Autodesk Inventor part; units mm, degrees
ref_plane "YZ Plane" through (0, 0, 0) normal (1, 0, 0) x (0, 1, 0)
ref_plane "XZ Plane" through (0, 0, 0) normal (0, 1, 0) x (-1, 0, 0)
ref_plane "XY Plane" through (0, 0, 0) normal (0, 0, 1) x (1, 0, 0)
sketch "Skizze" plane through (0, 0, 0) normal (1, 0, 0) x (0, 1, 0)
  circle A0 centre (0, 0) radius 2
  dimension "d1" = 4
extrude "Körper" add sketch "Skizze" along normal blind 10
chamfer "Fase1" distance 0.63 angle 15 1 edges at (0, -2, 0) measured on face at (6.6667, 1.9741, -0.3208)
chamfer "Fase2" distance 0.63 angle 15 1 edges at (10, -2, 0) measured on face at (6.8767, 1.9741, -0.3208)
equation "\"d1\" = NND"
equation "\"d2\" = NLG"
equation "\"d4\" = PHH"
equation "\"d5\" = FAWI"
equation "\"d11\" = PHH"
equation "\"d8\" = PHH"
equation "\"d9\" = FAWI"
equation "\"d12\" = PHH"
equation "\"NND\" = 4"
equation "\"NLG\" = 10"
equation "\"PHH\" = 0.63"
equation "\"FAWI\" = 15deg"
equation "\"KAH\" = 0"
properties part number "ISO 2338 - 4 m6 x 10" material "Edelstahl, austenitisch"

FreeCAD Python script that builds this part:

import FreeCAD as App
import Part
import Sketcher


def edges_at(feature, points):
    """Names of the edges that pass closest to the given points."""
    edges = feature.Shape.Edges
    near = lambda p: min(range(len(edges)), key=lambda i: edges[i].distToShape(Part.Vertex(*p))[0])
    return sorted({f"Edge{near(p) + 1}" for p in points})

doc = App.newDocument("Part")
params = doc.addObject("Spreadsheet::Sheet", "Params")
for row, (alias, value) in enumerate([
    ("sketch1_diameter", "4 mm"),
    ("pad1_length", "10 mm"),
    ("chamfer_size", "0.63 mm"),
    ("chamfer2_size", "0.63 mm"),
], start=1):
    params.set(f"A{row}", alias)
    params.set(f"B{row}", "=" + value)
    params.setAlias(f"B{row}", alias)

body = doc.addObject("PartDesign::Body", "Body")

sketch1 = body.newObject("Sketcher::SketchObject", "Sketch")
sketch1.AttachmentSupport = (doc.getObject("YZ_Plane"), [""])
sketch1.MapMode = "FlatFace"
sketch1.addGeometry(Part.Circle(App.Vector(0, 0, 0), App.Vector(0, 0, 1), 2), False)
sketch1.addConstraint([
    Sketcher.Constraint("Coincident", 0, 3, -1, 1),
    Sketcher.Constraint("Diameter", 0, 4.0),
])
sketch1.setExpression("Constraints[1]", "Params.sketch1_diameter")
pad1 = body.newObject("PartDesign::Pad", "Pad")
pad1.Profile = sketch1
pad1.setExpression("Length", "Params.pad1_length")
doc.recompute()

chamfer = body.newObject("PartDesign::Chamfer", "Chamfer")
chamfer.Base = (pad1, edges_at(pad1, [(0, -2, 0)]))
chamfer.ChamferType = "Distance and Angle"
chamfer.setExpression("Size", "Params.chamfer_size")
chamfer.Angle = 15
doc.recompute()

chamfer2 = body.newObject("PartDesign::Chamfer", "Chamfer001")
chamfer2.Base = (chamfer, edges_at(chamfer, [(10, -2, 0)]))
chamfer2.ChamferType = "Distance and Angle"
chamfer2.setExpression("Size", "Params.chamfer2_size")
chamfer2.Angle = 15

doc.recompute()
